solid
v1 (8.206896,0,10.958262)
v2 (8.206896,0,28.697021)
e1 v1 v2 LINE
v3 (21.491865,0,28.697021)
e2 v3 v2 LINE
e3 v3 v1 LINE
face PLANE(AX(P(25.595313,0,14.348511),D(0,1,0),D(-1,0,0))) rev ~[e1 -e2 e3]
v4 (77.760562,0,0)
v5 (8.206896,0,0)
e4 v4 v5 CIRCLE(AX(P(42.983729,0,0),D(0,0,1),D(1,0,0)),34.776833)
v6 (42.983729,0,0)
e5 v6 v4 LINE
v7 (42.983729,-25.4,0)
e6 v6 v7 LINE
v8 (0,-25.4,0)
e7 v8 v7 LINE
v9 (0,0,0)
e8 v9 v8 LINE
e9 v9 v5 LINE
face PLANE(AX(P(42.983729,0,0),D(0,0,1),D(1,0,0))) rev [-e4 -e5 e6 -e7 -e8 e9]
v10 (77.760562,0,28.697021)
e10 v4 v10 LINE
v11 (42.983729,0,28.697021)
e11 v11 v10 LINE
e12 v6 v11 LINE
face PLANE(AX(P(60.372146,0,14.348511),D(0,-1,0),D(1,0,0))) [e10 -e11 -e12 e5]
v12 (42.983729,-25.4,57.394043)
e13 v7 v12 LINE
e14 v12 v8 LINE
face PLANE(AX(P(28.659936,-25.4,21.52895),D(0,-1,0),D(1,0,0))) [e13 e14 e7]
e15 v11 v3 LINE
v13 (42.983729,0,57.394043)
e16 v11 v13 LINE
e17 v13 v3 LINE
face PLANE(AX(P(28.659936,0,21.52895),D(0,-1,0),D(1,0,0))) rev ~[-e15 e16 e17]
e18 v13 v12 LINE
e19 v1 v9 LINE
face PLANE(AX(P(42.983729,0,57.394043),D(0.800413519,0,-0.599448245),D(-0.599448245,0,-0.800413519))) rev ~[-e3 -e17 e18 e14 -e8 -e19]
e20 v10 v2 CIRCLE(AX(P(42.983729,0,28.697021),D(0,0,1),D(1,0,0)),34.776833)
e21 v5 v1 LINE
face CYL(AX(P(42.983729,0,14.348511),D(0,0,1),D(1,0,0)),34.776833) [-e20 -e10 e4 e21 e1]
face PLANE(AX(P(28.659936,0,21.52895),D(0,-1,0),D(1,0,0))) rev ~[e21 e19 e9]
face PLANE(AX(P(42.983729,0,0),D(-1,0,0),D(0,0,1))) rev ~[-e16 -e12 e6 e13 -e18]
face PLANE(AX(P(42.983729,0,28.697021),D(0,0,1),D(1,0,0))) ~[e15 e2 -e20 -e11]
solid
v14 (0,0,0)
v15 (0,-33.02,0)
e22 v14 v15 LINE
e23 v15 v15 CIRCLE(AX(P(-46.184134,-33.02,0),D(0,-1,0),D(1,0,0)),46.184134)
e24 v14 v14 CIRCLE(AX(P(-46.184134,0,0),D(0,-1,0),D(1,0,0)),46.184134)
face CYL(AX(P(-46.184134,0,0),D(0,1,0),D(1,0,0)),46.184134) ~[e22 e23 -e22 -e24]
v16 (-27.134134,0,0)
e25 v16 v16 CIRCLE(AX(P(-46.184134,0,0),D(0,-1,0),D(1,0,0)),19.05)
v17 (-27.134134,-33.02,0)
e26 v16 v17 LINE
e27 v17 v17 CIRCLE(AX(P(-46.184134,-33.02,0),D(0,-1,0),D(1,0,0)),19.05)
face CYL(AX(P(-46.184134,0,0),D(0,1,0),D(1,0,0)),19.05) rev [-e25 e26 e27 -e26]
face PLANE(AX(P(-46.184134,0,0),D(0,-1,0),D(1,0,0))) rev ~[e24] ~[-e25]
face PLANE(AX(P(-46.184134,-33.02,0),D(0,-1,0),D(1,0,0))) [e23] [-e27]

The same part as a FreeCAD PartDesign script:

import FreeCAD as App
import Part
import Sketcher

V = App.Vector
Q = App.Units.Quantity


def add_polygon(sketch, points):
    """Adds a closed chain of lines whose ends are joined by coincident constraints."""
    first, n = sketch.GeometryCount, len(points)
    for a, b in zip(points, points[1:] + points[:1]):
        sketch.addGeometry(Part.LineSegment(App.Vector(*a, 0), App.Vector(*b, 0)), False)
    for i in range(n):
        sketch.addConstraint(Sketcher.Constraint("Coincident", first + i, 2, first + (i + 1) % n, 1))

doc = App.newDocument("Part")
params = doc.addObject("Spreadsheet::Sheet", "Params")
for row, (alias, value) in enumerate([
    ("pad1_length", "1.3 in"),
    ("sketch2_diameter", "1.5 in"),
    ("pad2_length", "1 in"),
    ("revolution_angle", "180 deg"),
], start=1):
    params.set(f"A{row}", alias)
    params.set(f"B{row}", "=" + value)
    params.setAlias(f"B{row}", alias)

body = doc.addObject("PartDesign::Body", "Body")

# Sketch on XZ plane
sketch1 = body.newObject("Sketcher::SketchObject", "Sketch")
sketch1.AttachmentSupport = (doc.getObject("XZ_Plane"), [""])
sketch1.MapMode = "FlatFace"
sketch1.addGeometry(Part.Circle(V(-46, 0, 0), V(0, 0, 1), 46), False)
sketch1.addConstraint(Sketcher.Constraint("PointOnObject", 0, 3, -1))
sketch1.addConstraint(Sketcher.Constraint("Diameter", 0, Q("92.368267 mm")))
sketch1.addConstraint(Sketcher.Constraint("DistanceX", 0, 3, -1, 1, Q("46.184134 mm")))
pad1 = body.newObject("PartDesign::Pad", "Pad")
pad1.Profile = sketch1
pad1.setExpression("Length", "Params.pad1_length")

# Sketch on XZ plane
sketch2 = body.newObject("Sketcher::SketchObject", "Sketch001")
sketch2.AttachmentSupport = (doc.getObject("XZ_Plane"), [""])
sketch2.MapMode = "FlatFace"
sketch2.addGeometry(Part.Circle(V(-46, 0, 0), V(0, 0, 1), 19), False)
sketch2.addConstraint(Sketcher.Constraint("PointOnObject", 0, 3, -1))
sketch2.addConstraint(Sketcher.Constraint("Diameter", 0, Q("1.5 in")))
sketch2.addConstraint(Sketcher.Constraint("DistanceX", 0, 3, -1, 1, Q("46.184134 mm")))
sketch2.setExpression("Constraints[1]", "Params.sketch2_diameter")
pocket1 = body.newObject("PartDesign::Pocket", "Pocket")
pocket1.Profile = sketch2
pocket1.Type = "ThroughAll"
pocket1.Reversed = True
body2 = doc.addObject("PartDesign::Body", "Body001")

# Sketch on XZ plane
sketch3 = body2.newObject("Sketcher::SketchObject", "Sketch002")
sketch3.AttachmentSupport = (doc.getObject("XZ_Plane001"), [""])
sketch3.MapMode = "FlatFace"
add_polygon(sketch3, [(43, 57), (0, 0), (43, 0)])  # lines 0-2
sketch3.addConstraint(Sketcher.Constraint("Horizontal", 1))
sketch3.addConstraint(Sketcher.Constraint("Vertical", 2))
sketch3.addConstraint(Sketcher.Constraint("Coincident", 0, 2, -1, 1))
sketch3.addConstraint(Sketcher.Constraint("DistanceX", 1, 1, 1, 2, Q("42.983729 mm")))
sketch3.addConstraint(Sketcher.Constraint("Distance", 0, Q("71.705489 mm")))
pad2 = body2.newObject("PartDesign::Pad", "Pad001")
pad2.Profile = sketch3
pad2.setExpression("Length", "Params.pad2_length")

# Sketch on XZ plane
sketch4 = body2.newObject("Sketcher::SketchObject", "Sketch003")
sketch4.AttachmentSupport = (doc.getObject("XZ_Plane001"), [""])
sketch4.MapMode = "FlatFace"
add_polygon(sketch4, [(43, 29), (43, 0), (78, 0), (78, 29)])  # lines 0-3
sketch4.addGeometry(Part.LineSegment(V(43, 0, 0), V(43, 29, 0)), True)  # axis
sketch4.addConstraint(Sketcher.Constraint("Vertical", 0))
sketch4.addConstraint(Sketcher.Constraint("Horizontal", 1))
sketch4.addConstraint(Sketcher.Constraint("Vertical", 2))
sketch4.addConstraint(Sketcher.Constraint("Horizontal", 3))
sketch4.addConstraint(Sketcher.Constraint("Vertical", 4))
sketch4.addConstraint(Sketcher.Constraint("Coincident", 4, 1, 0, 2))
sketch4.addConstraint(Sketcher.Constraint("PointOnObject", 0, 2, -1))
sketch4.addConstraint(Sketcher.Constraint("Horizontal", 2, 2, 4, 2))
sketch4.addConstraint(Sketcher.Constraint("DistanceY", 0, 2, 0, 1, Q("28.697021 mm")))
sketch4.addConstraint(Sketcher.Constraint("DistanceX", 1, 1, 1, 2, Q("34.776833 mm")))
sketch4.addConstraint(Sketcher.Constraint("DistanceX", -1, 1, 0, 2, Q("42.983729 mm")))
revolution = body2.newObject("PartDesign::Revolution", "Revolution")
revolution.Profile = sketch4
revolution.ReferenceAxis = (sketch4, ["Axis0"])
revolution.setExpression("Angle", "Params.revolution_angle")

doc.recompute()
